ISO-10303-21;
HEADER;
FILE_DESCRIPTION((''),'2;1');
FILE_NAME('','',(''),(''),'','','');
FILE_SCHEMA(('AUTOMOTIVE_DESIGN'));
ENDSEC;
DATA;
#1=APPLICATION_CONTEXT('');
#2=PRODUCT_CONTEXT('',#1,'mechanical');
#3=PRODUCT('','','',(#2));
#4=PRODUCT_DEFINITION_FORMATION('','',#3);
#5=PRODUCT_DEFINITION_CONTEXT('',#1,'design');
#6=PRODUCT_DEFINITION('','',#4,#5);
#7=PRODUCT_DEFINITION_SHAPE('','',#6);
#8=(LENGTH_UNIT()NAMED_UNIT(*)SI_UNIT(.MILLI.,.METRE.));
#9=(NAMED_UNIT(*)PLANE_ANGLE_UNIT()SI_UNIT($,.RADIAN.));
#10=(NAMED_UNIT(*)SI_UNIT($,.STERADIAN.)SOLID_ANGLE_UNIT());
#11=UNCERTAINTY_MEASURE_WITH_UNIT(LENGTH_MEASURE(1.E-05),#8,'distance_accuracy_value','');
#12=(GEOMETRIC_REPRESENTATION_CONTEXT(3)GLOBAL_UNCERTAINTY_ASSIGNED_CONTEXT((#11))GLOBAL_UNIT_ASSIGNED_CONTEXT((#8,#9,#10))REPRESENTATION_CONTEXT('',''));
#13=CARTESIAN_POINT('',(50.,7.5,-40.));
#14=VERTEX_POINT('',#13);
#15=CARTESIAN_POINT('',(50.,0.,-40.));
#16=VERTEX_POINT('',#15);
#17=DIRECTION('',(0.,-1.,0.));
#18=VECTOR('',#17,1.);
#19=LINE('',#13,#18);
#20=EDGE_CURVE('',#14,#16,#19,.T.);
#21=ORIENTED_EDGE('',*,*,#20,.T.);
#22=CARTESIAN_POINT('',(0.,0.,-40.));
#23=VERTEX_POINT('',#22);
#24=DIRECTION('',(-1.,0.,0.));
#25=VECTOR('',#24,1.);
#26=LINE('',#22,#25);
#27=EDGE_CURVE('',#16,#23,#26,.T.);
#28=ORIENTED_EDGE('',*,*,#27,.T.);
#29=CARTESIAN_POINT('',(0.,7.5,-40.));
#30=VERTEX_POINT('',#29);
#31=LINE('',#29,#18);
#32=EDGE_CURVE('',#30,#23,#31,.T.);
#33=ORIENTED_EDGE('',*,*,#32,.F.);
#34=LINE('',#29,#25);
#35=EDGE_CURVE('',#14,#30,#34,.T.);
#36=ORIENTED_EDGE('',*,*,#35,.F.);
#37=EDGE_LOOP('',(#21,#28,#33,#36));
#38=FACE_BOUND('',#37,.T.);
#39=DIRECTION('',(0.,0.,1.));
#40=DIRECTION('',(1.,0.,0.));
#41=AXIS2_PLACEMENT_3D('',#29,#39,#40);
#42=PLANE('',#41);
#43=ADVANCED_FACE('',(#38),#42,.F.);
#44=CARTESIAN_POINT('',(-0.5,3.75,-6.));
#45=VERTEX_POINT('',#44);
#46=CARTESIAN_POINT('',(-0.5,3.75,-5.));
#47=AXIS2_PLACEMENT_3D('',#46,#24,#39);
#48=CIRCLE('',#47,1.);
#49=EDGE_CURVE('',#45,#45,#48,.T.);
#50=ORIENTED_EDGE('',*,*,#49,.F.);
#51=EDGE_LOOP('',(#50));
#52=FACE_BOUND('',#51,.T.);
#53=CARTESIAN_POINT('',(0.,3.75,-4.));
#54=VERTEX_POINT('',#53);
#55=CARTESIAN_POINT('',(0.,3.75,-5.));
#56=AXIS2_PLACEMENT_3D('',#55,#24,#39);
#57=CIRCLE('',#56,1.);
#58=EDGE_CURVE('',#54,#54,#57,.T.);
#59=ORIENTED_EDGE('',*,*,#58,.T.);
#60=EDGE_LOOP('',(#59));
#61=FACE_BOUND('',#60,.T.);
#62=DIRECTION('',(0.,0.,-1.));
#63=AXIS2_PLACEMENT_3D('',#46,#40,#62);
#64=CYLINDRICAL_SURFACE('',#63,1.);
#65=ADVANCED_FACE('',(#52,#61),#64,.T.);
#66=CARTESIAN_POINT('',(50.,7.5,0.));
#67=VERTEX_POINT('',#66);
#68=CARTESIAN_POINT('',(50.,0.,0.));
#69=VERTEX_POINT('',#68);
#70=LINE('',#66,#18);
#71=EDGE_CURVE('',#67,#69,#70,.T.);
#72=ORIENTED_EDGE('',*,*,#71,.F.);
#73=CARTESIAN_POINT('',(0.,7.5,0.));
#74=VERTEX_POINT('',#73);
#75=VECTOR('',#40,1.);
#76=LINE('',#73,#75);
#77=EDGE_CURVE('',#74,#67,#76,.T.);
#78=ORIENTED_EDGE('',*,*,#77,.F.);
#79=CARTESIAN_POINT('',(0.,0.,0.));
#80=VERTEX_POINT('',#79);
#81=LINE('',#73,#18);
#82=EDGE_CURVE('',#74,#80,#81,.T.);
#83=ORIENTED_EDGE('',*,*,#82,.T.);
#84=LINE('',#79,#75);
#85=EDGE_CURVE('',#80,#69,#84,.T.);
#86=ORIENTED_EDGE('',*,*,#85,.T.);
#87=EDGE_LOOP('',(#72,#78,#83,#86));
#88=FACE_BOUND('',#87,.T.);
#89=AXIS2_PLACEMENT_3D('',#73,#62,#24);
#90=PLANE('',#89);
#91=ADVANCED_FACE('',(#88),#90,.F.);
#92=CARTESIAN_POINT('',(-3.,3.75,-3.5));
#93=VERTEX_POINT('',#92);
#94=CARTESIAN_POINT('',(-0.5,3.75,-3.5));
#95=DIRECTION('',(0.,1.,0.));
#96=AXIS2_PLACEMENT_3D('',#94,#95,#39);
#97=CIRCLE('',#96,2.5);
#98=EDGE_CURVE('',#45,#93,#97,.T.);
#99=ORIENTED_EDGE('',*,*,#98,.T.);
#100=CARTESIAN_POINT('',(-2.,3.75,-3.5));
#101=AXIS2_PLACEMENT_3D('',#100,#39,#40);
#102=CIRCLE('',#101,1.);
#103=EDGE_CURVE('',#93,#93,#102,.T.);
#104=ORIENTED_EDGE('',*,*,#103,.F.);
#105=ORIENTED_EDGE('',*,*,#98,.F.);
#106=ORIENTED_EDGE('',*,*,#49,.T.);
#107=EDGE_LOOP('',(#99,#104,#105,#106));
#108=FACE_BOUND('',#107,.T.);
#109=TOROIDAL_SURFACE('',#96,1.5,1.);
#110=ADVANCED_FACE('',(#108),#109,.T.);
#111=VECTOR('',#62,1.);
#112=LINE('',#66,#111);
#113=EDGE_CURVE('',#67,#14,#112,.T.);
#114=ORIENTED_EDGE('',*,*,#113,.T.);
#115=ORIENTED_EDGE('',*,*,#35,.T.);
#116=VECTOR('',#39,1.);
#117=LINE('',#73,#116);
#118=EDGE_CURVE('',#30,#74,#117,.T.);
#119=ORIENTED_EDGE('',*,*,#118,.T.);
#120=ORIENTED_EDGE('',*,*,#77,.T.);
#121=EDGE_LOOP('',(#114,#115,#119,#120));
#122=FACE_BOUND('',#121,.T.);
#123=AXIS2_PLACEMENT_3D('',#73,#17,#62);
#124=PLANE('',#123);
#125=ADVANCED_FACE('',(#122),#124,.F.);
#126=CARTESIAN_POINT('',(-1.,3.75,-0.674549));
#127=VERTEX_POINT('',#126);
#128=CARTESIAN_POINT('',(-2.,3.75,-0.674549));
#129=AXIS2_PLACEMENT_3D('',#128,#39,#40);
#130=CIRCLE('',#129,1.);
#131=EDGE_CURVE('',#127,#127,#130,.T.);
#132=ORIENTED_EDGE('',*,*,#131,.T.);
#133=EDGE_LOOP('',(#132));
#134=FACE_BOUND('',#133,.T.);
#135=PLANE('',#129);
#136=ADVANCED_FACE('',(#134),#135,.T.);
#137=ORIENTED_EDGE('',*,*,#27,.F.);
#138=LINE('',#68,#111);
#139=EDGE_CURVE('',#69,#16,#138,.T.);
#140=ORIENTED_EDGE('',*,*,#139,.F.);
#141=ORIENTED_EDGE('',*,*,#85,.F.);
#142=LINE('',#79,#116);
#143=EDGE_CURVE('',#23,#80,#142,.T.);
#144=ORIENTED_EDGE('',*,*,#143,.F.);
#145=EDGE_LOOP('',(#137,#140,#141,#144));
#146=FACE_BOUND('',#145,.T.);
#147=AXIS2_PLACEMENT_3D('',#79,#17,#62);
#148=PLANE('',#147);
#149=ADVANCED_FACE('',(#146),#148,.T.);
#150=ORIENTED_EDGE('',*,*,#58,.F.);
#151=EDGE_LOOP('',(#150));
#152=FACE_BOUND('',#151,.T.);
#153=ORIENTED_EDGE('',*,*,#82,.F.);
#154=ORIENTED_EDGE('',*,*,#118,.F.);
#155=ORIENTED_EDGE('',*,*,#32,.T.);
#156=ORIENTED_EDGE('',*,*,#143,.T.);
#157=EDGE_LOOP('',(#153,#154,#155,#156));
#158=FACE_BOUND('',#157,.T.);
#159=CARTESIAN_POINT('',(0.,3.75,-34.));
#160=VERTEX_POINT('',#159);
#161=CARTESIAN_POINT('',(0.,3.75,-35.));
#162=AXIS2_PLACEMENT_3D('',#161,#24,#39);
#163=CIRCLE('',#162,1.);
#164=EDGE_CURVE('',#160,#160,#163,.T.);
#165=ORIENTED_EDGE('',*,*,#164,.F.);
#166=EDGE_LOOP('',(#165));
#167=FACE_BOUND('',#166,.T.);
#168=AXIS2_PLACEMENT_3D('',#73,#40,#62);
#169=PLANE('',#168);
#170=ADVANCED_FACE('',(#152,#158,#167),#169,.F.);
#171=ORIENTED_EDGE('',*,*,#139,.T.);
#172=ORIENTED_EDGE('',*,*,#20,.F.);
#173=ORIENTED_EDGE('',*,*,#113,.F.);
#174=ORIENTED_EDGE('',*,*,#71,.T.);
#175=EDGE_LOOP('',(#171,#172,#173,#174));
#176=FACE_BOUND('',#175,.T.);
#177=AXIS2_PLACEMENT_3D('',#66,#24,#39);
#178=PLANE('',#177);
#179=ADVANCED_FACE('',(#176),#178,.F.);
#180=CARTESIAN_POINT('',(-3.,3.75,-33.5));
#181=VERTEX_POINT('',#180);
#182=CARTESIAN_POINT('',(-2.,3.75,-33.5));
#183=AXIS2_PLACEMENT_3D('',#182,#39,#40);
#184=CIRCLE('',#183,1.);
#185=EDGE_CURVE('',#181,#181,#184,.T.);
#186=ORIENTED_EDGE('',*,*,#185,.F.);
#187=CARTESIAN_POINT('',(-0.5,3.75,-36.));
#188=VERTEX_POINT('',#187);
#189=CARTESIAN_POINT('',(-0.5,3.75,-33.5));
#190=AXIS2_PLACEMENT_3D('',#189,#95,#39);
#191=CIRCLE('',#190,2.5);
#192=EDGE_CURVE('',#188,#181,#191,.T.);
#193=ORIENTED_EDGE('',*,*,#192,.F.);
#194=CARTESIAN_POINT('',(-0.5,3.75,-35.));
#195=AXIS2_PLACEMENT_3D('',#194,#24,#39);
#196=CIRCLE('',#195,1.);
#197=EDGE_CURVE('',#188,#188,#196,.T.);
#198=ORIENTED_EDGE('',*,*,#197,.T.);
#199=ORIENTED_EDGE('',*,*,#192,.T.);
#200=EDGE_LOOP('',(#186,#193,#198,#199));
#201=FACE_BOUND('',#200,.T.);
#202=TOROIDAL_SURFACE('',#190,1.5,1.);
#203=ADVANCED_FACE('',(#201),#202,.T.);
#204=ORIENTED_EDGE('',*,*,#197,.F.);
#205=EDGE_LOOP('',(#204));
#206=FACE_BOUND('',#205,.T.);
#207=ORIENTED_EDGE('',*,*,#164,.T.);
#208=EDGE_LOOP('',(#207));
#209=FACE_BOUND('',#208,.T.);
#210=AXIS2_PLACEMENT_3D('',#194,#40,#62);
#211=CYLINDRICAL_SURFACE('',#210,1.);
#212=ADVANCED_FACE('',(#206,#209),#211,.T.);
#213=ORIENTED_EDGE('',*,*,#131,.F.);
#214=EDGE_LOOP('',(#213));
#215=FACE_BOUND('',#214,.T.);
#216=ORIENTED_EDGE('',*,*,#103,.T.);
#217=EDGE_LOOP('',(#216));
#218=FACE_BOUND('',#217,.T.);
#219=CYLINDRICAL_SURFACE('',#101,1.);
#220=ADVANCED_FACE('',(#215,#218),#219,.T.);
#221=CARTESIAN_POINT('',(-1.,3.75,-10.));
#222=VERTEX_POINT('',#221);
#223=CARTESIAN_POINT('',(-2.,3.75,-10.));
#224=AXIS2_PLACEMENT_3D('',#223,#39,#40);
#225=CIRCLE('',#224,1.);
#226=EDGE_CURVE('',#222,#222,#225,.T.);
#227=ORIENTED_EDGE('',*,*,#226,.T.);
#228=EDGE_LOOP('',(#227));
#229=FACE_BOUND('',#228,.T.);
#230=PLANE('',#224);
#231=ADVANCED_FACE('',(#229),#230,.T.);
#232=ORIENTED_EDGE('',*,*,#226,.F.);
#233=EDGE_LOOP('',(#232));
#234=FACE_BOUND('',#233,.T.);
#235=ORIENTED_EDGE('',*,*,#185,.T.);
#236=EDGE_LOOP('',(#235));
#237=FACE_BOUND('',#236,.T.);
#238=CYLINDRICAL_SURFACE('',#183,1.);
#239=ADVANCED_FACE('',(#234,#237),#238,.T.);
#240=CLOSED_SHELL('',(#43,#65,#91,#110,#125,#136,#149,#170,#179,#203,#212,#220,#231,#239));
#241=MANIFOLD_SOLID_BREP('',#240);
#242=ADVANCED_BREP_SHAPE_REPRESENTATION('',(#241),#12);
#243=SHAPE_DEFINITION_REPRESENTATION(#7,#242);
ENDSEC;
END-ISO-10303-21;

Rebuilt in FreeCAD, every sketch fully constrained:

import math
import FreeCAD as App
import Part
import Sketcher


def add_polygon(sketch, points):
    """Adds a closed chain of lines whose ends are joined by coincident constraints."""
    first, n = sketch.GeometryCount, len(points)
    for a, b in zip(points, points[1:] + points[:1]):
        sketch.addGeometry(Part.LineSegment(App.Vector(*a, 0), App.Vector(*b, 0)), False)
    for i in range(n):
        sketch.addConstraint(Sketcher.Constraint("Coincident", first + i, 2, first + (i + 1) % n, 1))

doc = App.newDocument("Part")
body = doc.addObject("PartDesign::Body", "Body")

# Sketch on XZ plane
sketch1 = doc.addObject("Sketcher::SketchObject", "Sketch")
body.addObject(sketch1)
sketch1.AttachmentSupport = (doc.XZ_Plane, [""])
sketch1.MapMode = "FlatFace"
add_polygon(sketch1, [(0, -40), (0, 0), (50, 0), (50, -40)])  # lines 0-3
sketch1.addConstraint([
    Sketcher.Constraint("Vertical", 0),
    Sketcher.Constraint("Horizontal", 1),
    Sketcher.Constraint("Vertical", 2),
    Sketcher.Constraint("Horizontal", 3),
    Sketcher.Constraint("Coincident", 0, 2, -1, 1),
    Sketcher.Constraint("DistanceX", 1, 1, 1, 2, 50.0),
    Sketcher.Constraint("DistanceY", 0, 1, 0, 2, 40.0),
])
pad1 = doc.addObject("PartDesign::Pad", "Pad")
body.addObject(pad1)
pad1.Profile = sketch1
pad1.Length = 7.5
pad1.Reversed = True

# Sketch on YZ plane
sketch2 = doc.addObject("Sketcher::SketchObject", "Sketch001")
body.addObject(sketch2)
sketch2.AttachmentSupport = (doc.YZ_Plane, [""])
sketch2.MapMode = "FlatFace"
sketch2.addGeometry(Part.Circle(App.Vector(3.75, -35, 0), App.Vector(0, 0, 1), 1), False)
sketch2.addConstraint([
    Sketcher.Constraint("Diameter", 0, 2.0),
    Sketcher.Constraint("DistanceY", 0, 3, -1, 1, 35.0),
    Sketcher.Constraint("DistanceX", -1, 1, 0, 3, 3.75),
])

# Sketch on XZ plane
sketch3 = doc.addObject("Sketcher::SketchObject", "Sketch002")
body.addObject(sketch3)
sketch3.AttachmentSupport = (doc.XZ_Plane, [""])
sketch3.MapMode = "FlatFace"
sketch3.AttachmentOffset = App.Placement(App.Vector(0, 0, -3.75), App.Rotation())
sketch3.addGeometry([
    Part.LineSegment(App.Vector(0, -35, 0), App.Vector(-0.5, -35, 0)),
    Part.ArcOfCircle(Part.Circle(App.Vector(-0.5, -33.5, 0), App.Vector(0, 0, 1), 1.5), math.radians(180), math.radians(270)),
    Part.LineSegment(App.Vector(-2, -33.5, 0), App.Vector(-2, -10, 0)),
], False)
sketch3.addConstraint([
    Sketcher.Constraint("Tangent", 0, 2, 1, 2),
    Sketcher.Constraint("Tangent", 1, 1, 2, 1),
    Sketcher.Constraint("Horizontal", 0),
    Sketcher.Constraint("Vertical", 2),
    Sketcher.Constraint("PointOnObject", 0, 1, -2),
    Sketcher.Constraint("Radius", 1, 1.5),
    Sketcher.Constraint("DistanceX", 0, 2, 0, 1, 0.5),
    Sketcher.Constraint("DistanceY", 2, 1, 2, 2, 23.5),
    Sketcher.Constraint("DistanceY", 0, 1, -1, 1, 35.0),
])
doc.recompute()

additivepipe = doc.addObject("PartDesign::AdditivePipe", "AdditivePipe")
body.addObject(additivepipe)
additivepipe.Profile = sketch2
additivepipe.Spine = (sketch3, ["Edge1", "Edge2", "Edge3"])

# Sketch on YZ plane
sketch4 = doc.addObject("Sketcher::SketchObject", "Sketch003")
body.addObject(sketch4)
sketch4.AttachmentSupport = (doc.YZ_Plane, [""])
sketch4.MapMode = "FlatFace"
sketch4.addGeometry(Part.Circle(App.Vector(3.75, -5, 0), App.Vector(0, 0, 1), 1), False)
sketch4.addConstraint([
    Sketcher.Constraint("Diameter", 0, 2.0),
    Sketcher.Constraint("DistanceY", 0, 3, -1, 1, 5.0),
    Sketcher.Constraint("DistanceX", -1, 1, 0, 3, 3.75),
])

# Sketch on XZ plane
sketch5 = doc.addObject("Sketcher::SketchObject", "Sketch004")
body.addObject(sketch5)
sketch5.AttachmentSupport = (doc.XZ_Plane, [""])
sketch5.MapMode = "FlatFace"
sketch5.AttachmentOffset = App.Placement(App.Vector(0, 0, -3.75), App.Rotation())
sketch5.addGeometry([
    Part.LineSegment(App.Vector(0, -5, 0), App.Vector(-0.5, -5, 0)),
    Part.ArcOfCircle(Part.Circle(App.Vector(-0.5, -3.5, 0), App.Vector(0, 0, 1), 1.5), math.radians(180), math.radians(270)),
    Part.LineSegment(App.Vector(-2, -3.5, 0), App.Vector(-2, -0.674549, 0)),
], False)
sketch5.addConstraint([
    Sketcher.Constraint("Tangent", 0, 2, 1, 2),
    Sketcher.Constraint("Tangent", 1, 1, 2, 1),
    Sketcher.Constraint("Horizontal", 0),
    Sketcher.Constraint("Vertical", 2),
    Sketcher.Constraint("PointOnObject", 0, 1, -2),
    Sketcher.Constraint("Radius", 1, 1.5),
    Sketcher.Constraint("DistanceX", 0, 2, 0, 1, 0.5),
    Sketcher.Constraint("DistanceY", 0, 1, -1, 1, 5.0),
    Sketcher.Constraint("DistanceY", 2, 1, 2, 2, 2.825451),
])
doc.recompute()

additivepipe2 = doc.addObject("PartDesign::AdditivePipe", "AdditivePipe001")
body.addObject(additivepipe2)
additivepipe2.Profile = sketch4
additivepipe2.Spine = (sketch5, ["Edge1", "Edge2", "Edge3"])

doc.recompute()
